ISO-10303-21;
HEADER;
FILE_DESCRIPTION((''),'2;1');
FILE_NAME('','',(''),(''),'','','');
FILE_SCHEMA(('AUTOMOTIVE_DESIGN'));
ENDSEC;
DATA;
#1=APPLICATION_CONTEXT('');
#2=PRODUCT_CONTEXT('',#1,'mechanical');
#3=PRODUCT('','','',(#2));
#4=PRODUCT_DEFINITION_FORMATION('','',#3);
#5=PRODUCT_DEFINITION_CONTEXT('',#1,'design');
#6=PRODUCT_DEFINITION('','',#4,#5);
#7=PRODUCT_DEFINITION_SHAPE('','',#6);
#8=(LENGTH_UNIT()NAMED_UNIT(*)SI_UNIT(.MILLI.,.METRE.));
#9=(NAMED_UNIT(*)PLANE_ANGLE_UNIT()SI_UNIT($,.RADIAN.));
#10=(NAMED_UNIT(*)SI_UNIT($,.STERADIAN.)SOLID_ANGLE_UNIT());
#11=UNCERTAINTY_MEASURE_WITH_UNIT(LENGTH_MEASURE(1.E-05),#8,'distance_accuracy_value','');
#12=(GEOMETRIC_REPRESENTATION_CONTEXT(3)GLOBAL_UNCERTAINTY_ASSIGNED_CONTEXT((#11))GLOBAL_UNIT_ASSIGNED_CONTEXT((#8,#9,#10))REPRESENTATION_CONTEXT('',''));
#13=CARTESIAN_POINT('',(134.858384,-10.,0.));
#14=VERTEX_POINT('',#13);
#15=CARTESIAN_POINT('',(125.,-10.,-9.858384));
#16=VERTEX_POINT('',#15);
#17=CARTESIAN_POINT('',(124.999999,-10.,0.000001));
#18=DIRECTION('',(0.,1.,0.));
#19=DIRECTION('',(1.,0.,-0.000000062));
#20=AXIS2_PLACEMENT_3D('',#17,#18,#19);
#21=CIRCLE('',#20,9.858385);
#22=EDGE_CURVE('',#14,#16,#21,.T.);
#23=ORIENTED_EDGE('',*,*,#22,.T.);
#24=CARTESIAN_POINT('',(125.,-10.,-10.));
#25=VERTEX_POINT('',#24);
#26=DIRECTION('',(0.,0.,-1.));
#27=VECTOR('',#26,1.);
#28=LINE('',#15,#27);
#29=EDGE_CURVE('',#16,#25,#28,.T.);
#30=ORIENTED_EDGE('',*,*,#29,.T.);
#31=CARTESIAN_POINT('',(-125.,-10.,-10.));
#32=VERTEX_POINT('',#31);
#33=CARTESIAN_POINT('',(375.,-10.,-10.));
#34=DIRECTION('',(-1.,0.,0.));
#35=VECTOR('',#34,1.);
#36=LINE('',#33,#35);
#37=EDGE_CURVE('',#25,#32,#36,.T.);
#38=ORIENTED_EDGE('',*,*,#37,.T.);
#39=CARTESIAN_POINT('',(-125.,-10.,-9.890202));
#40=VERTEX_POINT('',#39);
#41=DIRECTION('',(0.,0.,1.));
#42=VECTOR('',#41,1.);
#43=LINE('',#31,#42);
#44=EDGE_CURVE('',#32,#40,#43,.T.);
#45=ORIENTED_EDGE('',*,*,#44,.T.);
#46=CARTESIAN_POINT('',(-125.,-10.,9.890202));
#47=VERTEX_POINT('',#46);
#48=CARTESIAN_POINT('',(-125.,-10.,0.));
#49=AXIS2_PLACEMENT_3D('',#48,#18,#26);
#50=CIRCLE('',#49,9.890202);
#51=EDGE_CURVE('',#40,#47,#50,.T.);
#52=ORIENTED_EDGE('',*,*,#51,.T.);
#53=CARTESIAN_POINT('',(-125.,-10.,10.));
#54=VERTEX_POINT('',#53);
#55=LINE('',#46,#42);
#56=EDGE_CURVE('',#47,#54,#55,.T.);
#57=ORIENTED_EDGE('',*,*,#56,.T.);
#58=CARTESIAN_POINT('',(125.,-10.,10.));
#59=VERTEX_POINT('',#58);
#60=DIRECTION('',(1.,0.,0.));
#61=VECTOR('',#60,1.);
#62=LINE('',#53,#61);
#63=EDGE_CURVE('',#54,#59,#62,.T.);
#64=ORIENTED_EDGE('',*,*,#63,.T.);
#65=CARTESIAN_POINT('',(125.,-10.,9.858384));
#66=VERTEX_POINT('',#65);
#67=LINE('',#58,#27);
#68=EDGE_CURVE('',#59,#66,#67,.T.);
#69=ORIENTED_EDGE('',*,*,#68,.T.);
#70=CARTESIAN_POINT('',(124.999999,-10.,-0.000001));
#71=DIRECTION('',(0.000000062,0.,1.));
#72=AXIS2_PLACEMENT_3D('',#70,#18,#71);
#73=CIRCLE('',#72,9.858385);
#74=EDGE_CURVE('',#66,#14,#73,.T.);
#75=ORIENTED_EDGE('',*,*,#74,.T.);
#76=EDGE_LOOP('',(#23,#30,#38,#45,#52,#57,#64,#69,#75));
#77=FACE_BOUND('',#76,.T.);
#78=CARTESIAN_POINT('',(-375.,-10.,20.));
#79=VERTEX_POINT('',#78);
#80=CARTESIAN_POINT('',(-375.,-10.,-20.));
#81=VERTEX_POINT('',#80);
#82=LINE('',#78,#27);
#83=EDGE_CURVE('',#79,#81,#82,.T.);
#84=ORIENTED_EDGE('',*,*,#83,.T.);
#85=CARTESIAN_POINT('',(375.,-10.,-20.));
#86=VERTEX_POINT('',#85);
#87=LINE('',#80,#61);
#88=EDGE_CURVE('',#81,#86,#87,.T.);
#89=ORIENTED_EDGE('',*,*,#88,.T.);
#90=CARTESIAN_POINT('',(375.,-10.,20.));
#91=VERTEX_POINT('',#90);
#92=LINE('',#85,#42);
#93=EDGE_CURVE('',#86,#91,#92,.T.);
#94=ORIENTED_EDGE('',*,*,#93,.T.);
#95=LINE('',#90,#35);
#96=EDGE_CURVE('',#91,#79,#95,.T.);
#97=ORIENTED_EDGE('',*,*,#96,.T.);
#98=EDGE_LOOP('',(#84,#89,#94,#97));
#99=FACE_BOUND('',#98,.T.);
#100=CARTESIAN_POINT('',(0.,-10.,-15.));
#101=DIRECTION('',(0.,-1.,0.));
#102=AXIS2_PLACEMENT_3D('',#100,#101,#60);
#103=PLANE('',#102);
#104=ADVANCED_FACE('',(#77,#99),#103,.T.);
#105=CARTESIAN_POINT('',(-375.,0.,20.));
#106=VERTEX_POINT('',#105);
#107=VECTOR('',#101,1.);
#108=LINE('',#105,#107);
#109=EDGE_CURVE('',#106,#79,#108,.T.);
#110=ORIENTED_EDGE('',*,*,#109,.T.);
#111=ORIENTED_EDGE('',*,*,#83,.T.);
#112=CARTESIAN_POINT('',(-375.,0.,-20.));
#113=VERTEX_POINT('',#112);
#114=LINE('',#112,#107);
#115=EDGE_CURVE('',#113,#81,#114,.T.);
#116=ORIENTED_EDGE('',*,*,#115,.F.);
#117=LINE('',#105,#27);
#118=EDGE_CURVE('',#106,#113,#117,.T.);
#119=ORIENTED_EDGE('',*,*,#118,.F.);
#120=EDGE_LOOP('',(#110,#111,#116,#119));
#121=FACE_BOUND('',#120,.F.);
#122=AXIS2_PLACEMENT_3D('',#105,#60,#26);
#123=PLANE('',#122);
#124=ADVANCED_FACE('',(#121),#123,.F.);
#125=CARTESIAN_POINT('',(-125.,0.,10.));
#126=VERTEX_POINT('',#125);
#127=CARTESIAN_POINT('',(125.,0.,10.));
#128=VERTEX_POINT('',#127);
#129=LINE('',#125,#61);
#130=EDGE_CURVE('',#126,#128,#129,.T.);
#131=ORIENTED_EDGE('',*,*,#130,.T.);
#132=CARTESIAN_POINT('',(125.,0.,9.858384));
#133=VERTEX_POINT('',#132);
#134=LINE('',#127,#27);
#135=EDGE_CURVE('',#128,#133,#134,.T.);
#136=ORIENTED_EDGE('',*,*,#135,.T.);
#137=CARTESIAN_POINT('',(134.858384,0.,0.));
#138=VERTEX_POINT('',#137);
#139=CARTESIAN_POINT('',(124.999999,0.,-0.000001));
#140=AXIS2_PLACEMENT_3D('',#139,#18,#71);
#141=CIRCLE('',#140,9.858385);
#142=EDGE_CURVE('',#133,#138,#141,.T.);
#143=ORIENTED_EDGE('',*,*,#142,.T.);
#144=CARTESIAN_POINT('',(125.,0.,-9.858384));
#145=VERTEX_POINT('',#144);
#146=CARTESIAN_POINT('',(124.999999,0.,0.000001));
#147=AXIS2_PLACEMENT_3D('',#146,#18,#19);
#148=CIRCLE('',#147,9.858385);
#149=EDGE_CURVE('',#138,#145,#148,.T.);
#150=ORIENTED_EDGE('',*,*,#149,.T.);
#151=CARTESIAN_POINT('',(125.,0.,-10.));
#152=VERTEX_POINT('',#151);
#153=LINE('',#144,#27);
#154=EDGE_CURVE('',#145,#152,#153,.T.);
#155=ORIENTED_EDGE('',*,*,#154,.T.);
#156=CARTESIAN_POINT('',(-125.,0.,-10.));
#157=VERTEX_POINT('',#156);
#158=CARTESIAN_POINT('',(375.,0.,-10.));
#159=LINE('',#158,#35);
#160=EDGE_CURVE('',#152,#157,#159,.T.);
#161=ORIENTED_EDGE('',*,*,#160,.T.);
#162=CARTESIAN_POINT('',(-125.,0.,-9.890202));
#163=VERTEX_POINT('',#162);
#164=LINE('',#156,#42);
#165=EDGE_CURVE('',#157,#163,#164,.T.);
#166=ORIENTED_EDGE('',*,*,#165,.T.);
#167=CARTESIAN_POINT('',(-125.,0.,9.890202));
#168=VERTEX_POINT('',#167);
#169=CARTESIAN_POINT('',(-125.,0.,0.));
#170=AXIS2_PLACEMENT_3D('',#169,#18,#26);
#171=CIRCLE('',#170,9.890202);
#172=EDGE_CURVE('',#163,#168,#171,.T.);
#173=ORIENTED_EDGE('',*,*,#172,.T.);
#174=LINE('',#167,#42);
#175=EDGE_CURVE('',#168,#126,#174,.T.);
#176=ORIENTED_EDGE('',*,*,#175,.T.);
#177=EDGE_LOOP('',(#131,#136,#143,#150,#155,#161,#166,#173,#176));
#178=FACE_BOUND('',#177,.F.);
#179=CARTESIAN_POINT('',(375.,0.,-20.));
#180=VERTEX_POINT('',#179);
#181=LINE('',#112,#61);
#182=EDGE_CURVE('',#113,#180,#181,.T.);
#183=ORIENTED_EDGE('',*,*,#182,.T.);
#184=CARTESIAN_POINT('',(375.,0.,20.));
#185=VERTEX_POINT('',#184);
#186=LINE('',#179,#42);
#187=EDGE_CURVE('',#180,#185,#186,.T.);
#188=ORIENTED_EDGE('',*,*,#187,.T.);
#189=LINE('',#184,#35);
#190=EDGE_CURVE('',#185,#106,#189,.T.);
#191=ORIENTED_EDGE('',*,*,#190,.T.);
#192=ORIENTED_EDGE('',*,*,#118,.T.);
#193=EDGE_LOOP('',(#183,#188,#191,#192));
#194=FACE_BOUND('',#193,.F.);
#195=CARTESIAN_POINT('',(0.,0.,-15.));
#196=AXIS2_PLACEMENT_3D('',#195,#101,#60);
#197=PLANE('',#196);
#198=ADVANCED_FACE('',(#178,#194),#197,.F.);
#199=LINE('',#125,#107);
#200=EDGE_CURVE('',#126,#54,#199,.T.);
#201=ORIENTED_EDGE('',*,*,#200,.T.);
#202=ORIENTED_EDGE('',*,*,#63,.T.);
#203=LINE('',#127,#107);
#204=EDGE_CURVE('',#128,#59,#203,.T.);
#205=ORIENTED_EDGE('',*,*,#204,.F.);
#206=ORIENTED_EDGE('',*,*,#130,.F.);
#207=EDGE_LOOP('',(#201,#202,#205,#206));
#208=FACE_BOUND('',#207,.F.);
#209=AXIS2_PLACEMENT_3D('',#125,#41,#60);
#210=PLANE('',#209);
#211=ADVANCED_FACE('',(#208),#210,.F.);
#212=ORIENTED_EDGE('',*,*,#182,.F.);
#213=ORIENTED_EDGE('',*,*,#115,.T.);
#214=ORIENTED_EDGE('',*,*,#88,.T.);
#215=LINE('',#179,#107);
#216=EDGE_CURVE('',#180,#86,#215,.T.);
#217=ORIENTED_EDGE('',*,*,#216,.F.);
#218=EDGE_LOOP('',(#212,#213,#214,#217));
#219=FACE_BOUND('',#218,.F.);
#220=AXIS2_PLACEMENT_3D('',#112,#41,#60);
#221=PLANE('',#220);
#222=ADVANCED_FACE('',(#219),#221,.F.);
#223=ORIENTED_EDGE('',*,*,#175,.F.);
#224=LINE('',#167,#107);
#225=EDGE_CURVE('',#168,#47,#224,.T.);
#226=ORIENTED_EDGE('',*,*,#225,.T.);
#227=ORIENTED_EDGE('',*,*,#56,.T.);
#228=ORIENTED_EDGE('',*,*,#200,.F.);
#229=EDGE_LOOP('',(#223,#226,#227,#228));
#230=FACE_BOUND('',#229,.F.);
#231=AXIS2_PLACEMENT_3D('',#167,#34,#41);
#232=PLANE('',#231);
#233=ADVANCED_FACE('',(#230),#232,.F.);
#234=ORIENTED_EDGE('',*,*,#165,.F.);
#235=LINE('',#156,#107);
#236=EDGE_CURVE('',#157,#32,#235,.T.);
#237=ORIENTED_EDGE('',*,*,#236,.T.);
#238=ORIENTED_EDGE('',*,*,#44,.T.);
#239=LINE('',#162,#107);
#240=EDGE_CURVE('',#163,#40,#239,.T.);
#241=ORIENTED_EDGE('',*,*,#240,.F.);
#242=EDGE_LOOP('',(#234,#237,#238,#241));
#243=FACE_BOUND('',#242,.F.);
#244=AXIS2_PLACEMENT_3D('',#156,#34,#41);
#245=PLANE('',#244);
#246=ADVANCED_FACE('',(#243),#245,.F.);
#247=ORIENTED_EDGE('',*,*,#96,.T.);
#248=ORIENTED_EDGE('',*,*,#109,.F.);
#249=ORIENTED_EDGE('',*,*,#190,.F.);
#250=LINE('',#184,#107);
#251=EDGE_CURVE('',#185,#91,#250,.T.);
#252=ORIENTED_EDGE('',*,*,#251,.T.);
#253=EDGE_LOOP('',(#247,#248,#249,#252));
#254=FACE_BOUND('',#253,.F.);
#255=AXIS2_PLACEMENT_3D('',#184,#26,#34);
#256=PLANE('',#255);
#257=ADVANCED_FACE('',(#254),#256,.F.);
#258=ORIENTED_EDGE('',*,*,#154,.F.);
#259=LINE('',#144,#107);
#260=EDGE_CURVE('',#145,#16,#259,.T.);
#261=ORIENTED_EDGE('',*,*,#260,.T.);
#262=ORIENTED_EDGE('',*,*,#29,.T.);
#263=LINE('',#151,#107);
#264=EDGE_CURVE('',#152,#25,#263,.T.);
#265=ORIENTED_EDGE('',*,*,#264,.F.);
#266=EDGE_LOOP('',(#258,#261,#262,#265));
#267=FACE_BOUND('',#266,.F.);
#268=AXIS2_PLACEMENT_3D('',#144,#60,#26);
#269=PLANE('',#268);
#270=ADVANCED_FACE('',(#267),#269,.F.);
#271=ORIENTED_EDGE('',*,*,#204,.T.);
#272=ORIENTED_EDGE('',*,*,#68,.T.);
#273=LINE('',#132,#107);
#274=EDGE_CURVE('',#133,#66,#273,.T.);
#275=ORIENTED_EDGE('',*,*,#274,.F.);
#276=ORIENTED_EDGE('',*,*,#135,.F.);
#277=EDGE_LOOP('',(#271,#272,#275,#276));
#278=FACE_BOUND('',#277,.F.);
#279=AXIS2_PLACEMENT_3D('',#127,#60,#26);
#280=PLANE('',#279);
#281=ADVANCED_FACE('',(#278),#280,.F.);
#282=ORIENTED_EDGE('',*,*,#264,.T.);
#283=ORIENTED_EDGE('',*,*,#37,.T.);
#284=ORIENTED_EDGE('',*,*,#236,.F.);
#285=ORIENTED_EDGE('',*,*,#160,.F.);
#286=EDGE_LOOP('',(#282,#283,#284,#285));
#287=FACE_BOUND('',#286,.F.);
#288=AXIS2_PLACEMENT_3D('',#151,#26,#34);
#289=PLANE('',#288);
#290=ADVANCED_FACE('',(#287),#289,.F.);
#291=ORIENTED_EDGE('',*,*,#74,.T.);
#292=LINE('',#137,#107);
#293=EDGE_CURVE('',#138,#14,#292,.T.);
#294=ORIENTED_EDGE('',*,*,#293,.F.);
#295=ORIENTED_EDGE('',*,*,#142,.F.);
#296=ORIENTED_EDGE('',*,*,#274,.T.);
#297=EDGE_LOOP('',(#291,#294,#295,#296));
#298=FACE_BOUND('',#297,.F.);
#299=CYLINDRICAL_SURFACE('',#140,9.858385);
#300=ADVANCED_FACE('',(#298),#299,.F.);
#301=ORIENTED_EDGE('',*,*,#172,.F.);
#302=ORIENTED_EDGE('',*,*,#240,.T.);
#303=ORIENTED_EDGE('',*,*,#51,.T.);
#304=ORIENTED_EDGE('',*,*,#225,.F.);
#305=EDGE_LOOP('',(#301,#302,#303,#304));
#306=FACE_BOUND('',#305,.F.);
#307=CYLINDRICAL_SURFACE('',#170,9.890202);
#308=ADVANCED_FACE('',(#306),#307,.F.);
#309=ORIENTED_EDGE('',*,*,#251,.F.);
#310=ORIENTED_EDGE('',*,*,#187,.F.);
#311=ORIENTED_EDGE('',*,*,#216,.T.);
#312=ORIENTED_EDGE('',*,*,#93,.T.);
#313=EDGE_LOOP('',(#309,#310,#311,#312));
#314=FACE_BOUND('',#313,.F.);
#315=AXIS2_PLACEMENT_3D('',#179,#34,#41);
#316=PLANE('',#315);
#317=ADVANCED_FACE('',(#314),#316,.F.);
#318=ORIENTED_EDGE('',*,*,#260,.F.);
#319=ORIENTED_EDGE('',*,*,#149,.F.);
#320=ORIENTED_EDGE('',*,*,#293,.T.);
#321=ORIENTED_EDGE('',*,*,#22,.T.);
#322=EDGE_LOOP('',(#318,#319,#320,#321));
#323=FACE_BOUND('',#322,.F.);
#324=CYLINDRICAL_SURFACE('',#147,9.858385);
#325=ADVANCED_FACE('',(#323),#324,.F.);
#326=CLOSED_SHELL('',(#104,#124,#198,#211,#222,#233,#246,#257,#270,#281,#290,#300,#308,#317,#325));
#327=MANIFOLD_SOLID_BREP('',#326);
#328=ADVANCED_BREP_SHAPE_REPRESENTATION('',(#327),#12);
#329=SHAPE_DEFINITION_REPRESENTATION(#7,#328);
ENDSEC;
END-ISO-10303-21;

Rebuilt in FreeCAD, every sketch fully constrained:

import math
import FreeCAD as App
import Part
import Sketcher

V = App.Vector
Q = App.Units.Quantity


def add_polygon(sketch, points):
    """Adds a closed chain of lines whose ends are joined by coincident constraints."""
    first, n = sketch.GeometryCount, len(points)
    for a, b in zip(points, points[1:] + points[:1]):
        sketch.addGeometry(Part.LineSegment(App.Vector(*a, 0), App.Vector(*b, 0)), False)
    for i in range(n):
        sketch.addConstraint(Sketcher.Constraint("Coincident", first + i, 2, first + (i + 1) % n, 1))

doc = App.newDocument("Part")
params = doc.addObject("Spreadsheet::Sheet", "Params")
for row, (alias, value) in enumerate([
    ("sketch1_width", "750 mm"),
    ("sketch1_width2", "250 mm"),
    ("sketch1_height", "40 mm"),
    ("pad1_length", "10 mm"),
], start=1):
    params.set(f"A{row}", alias)
    params.set(f"B{row}", "=" + value)
    params.setAlias(f"B{row}", alias)

body = doc.addObject("PartDesign::Body", "Body")

# Sketch on XZ plane
sketch1 = body.newObject("Sketcher::SketchObject", "Sketch")
sketch1.AttachmentSupport = (doc.getObject("XZ_Plane"), [""])
sketch1.MapMode = "FlatFace"
add_polygon(sketch1, [(-375, -20), (375, -20), (375, 20), (-375, 20)])  # lines 0-3
sketch1.addGeometry(Part.LineSegment(V(125, 10, 0), V(125, 9.86, 0)), False)  # 4
sketch1.addGeometry(Part.ArcOfCircle(Part.Circle(V(125, 0, 0), V(0, 0, 1), 9.86), math.radians(0), math.radians(90)), False)  # 5
sketch1.addGeometry(Part.ArcOfCircle(Part.Circle(V(125, 0, 0), V(0, 0, 1), 9.86), math.radians(-90), math.radians(0)), False)  # 6
sketch1.addGeometry(Part.LineSegment(V(125, -9.86, 0), V(125, -10, 0)), False)  # 7
sketch1.addGeometry(Part.LineSegment(V(125, -10, 0), V(-125, -10, 0)), False)  # 8
sketch1.addGeometry(Part.LineSegment(V(-125, -10, 0), V(-125, -9.89, 0)), False)  # 9
sketch1.addGeometry(Part.ArcOfCircle(Part.Circle(V(-125, 0, 0), V(0, 0, 1), 9.89), math.radians(90), math.radians(270)), False)  # 10
sketch1.addGeometry(Part.LineSegment(V(-125, 9.89, 0), V(-125, 10, 0)), False)  # 11
sketch1.addGeometry(Part.LineSegment(V(-125, 10, 0), V(125, 10, 0)), False)  # 12
sketch1.addConstraint(Sketcher.Constraint("Coincident", 4, 2, 5, 2))
sketch1.addConstraint(Sketcher.Constraint("Tangent", 5, 1, 6, 2))
sketch1.addConstraint(Sketcher.Constraint("Coincident", 6, 1, 7, 1))
sketch1.addConstraint(Sketcher.Constraint("Coincident", 7, 2, 8, 1))
sketch1.addConstraint(Sketcher.Constraint("Coincident", 8, 2, 9, 1))
sketch1.addConstraint(Sketcher.Constraint("Coincident", 9, 2, 10, 2))
sketch1.addConstraint(Sketcher.Constraint("Coincident", 10, 1, 11, 1))
sketch1.addConstraint(Sketcher.Constraint("Coincident", 11, 2, 12, 1))
sketch1.addConstraint(Sketcher.Constraint("Coincident", 12, 2, 4, 1))
sketch1.addConstraint(Sketcher.Constraint("Horizontal", 0))
sketch1.addConstraint(Sketcher.Constraint("Vertical", 1))
sketch1.addConstraint(Sketcher.Constraint("Horizontal", 2))
sketch1.addConstraint(Sketcher.Constraint("Vertical", 3))
sketch1.addConstraint(Sketcher.Constraint("Vertical", 4))
sketch1.addConstraint(Sketcher.Constraint("Vertical", 7))
sketch1.addConstraint(Sketcher.Constraint("Horizontal", 8))
sketch1.addConstraint(Sketcher.Constraint("Vertical", 9))
sketch1.addConstraint(Sketcher.Constraint("Vertical", 11))
sketch1.addConstraint(Sketcher.Constraint("Horizontal", 12))
sketch1.addConstraint(Sketcher.Constraint("Equal", 5, 6))
sketch1.addConstraint(Sketcher.Constraint("Symmetric", 5, 3, 10, 3, -1, 1))
sketch1.addConstraint(Sketcher.Constraint("Symmetric", 0, 2, 2, 2, -1, 1))
sketch1.addConstraint(Sketcher.Constraint("Symmetric", 7, 2, 11, 2, -1, 1))
sketch1.addConstraint(Sketcher.Constraint("Symmetric", 4, 2, 6, 1, -1))
sketch1.addConstraint(Sketcher.Constraint("PointOnObject", 5, 1, -1))
sketch1.addConstraint(Sketcher.Constraint("Vertical", 6, 3, 4, 2))
sketch1.addConstraint(Sketcher.Constraint("Vertical", 10, 3, 8, 2))
sketch1.addConstraint(Sketcher.Constraint("DistanceX", 0, 1, 0, 2, Q("750 mm")))
sketch1.addConstraint(Sketcher.Constraint("DistanceX", 8, 2, 8, 1, Q("250 mm")))
sketch1.addConstraint(Sketcher.Constraint("DistanceY", 1, 1, 1, 2, Q("40 mm")))
sketch1.addConstraint(Sketcher.Constraint("DistanceY", 7, 2, -1, 1, Q("10 mm")))
sketch1.addConstraint(Sketcher.Constraint("Radius", 5, Q("9.858385 mm")))
sketch1.addConstraint(Sketcher.Constraint("Radius", 10, Q("9.890202 mm")))
sketch1.setExpression("Constraints[31]", "Params.sketch1_width")
sketch1.setExpression("Constraints[32]", "Params.sketch1_width2")
sketch1.setExpression("Constraints[33]", "Params.sketch1_height")
pad1 = body.newObject("PartDesign::Pad", "Pad")
pad1.Profile = sketch1
pad1.setExpression("Length", "Params.pad1_length")

doc.recompute()
